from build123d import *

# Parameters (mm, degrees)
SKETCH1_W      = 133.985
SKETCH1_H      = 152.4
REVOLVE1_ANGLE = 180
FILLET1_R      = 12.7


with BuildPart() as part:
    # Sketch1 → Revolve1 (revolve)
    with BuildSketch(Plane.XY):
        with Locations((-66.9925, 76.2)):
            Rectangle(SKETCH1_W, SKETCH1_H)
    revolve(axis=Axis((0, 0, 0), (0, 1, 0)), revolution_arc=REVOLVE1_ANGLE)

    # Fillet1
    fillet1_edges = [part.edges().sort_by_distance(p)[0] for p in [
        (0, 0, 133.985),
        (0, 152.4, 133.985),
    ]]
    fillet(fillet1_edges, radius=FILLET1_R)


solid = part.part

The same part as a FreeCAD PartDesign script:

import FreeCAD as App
import Part
import Sketcher
Q = App.Units.Quantity


def edges_at(feature, points):
    """Names of the edges that pass closest to the given points."""
    edges = feature.Shape.Edges
    near = lambda p: min(range(len(edges)), key=lambda i: edges[i].distToShape(Part.Vertex(*p))[0])
    return sorted({f"Edge{near(p) + 1}" for p in points})


def add_polygon(sketch, points):
    """Adds a closed chain of lines whose ends are joined by coincident constraints."""
    first, n = sketch.GeometryCount, len(points)
    for a, b in zip(points, points[1:] + points[:1]):
        sketch.addGeometry(Part.LineSegment(App.Vector(*a, 0), App.Vector(*b, 0)), False)
    for i in range(n):
        sketch.addConstraint(Sketcher.Constraint("Coincident", first + i, 2, first + (i + 1) % n, 1))

doc = App.newDocument("Part")
body = doc.addObject("PartDesign::Body", "Body")

# Sketch on XY plane
sketch1 = body.newObject("Sketcher::SketchObject", "Sketch")
sketch1.AttachmentSupport = (doc.getObject("XY_Plane"), [""])
sketch1.MapMode = "FlatFace"
add_polygon(sketch1, [(-134, 152), (-134, 0), (0, 0), (0, 152)])  # lines 0-3
sketch1.addConstraint([
    Sketcher.Constraint("Vertical", 0),
    Sketcher.Constraint("Horizontal", 1),
    Sketcher.Constraint("Vertical", 2),
    Sketcher.Constraint("Horizontal", 3),
    Sketcher.Constraint("Coincident", 1, 2, -1, 1),
    Sketcher.Constraint("DistanceY", 0, 2, 0, 1, Q("6 in")),
    Sketcher.Constraint("DistanceX", 1, 1, 1, 2, Q("5.275 in")),
])
revolution = body.newObject("PartDesign::Revolution", "Revolution")
revolution.Profile = sketch1
revolution.ReferenceAxis = (sketch1, ["V_Axis"])
revolution.Angle = 180
doc.recompute()

fillet = body.newObject("PartDesign::Fillet", "Fillet")
fillet.Base = (revolution, edges_at(revolution, [(0, 0, 133.985), (0, 152.4, 133.985)]))
fillet.Radius = Q("0.5 in")

doc.recompute()
